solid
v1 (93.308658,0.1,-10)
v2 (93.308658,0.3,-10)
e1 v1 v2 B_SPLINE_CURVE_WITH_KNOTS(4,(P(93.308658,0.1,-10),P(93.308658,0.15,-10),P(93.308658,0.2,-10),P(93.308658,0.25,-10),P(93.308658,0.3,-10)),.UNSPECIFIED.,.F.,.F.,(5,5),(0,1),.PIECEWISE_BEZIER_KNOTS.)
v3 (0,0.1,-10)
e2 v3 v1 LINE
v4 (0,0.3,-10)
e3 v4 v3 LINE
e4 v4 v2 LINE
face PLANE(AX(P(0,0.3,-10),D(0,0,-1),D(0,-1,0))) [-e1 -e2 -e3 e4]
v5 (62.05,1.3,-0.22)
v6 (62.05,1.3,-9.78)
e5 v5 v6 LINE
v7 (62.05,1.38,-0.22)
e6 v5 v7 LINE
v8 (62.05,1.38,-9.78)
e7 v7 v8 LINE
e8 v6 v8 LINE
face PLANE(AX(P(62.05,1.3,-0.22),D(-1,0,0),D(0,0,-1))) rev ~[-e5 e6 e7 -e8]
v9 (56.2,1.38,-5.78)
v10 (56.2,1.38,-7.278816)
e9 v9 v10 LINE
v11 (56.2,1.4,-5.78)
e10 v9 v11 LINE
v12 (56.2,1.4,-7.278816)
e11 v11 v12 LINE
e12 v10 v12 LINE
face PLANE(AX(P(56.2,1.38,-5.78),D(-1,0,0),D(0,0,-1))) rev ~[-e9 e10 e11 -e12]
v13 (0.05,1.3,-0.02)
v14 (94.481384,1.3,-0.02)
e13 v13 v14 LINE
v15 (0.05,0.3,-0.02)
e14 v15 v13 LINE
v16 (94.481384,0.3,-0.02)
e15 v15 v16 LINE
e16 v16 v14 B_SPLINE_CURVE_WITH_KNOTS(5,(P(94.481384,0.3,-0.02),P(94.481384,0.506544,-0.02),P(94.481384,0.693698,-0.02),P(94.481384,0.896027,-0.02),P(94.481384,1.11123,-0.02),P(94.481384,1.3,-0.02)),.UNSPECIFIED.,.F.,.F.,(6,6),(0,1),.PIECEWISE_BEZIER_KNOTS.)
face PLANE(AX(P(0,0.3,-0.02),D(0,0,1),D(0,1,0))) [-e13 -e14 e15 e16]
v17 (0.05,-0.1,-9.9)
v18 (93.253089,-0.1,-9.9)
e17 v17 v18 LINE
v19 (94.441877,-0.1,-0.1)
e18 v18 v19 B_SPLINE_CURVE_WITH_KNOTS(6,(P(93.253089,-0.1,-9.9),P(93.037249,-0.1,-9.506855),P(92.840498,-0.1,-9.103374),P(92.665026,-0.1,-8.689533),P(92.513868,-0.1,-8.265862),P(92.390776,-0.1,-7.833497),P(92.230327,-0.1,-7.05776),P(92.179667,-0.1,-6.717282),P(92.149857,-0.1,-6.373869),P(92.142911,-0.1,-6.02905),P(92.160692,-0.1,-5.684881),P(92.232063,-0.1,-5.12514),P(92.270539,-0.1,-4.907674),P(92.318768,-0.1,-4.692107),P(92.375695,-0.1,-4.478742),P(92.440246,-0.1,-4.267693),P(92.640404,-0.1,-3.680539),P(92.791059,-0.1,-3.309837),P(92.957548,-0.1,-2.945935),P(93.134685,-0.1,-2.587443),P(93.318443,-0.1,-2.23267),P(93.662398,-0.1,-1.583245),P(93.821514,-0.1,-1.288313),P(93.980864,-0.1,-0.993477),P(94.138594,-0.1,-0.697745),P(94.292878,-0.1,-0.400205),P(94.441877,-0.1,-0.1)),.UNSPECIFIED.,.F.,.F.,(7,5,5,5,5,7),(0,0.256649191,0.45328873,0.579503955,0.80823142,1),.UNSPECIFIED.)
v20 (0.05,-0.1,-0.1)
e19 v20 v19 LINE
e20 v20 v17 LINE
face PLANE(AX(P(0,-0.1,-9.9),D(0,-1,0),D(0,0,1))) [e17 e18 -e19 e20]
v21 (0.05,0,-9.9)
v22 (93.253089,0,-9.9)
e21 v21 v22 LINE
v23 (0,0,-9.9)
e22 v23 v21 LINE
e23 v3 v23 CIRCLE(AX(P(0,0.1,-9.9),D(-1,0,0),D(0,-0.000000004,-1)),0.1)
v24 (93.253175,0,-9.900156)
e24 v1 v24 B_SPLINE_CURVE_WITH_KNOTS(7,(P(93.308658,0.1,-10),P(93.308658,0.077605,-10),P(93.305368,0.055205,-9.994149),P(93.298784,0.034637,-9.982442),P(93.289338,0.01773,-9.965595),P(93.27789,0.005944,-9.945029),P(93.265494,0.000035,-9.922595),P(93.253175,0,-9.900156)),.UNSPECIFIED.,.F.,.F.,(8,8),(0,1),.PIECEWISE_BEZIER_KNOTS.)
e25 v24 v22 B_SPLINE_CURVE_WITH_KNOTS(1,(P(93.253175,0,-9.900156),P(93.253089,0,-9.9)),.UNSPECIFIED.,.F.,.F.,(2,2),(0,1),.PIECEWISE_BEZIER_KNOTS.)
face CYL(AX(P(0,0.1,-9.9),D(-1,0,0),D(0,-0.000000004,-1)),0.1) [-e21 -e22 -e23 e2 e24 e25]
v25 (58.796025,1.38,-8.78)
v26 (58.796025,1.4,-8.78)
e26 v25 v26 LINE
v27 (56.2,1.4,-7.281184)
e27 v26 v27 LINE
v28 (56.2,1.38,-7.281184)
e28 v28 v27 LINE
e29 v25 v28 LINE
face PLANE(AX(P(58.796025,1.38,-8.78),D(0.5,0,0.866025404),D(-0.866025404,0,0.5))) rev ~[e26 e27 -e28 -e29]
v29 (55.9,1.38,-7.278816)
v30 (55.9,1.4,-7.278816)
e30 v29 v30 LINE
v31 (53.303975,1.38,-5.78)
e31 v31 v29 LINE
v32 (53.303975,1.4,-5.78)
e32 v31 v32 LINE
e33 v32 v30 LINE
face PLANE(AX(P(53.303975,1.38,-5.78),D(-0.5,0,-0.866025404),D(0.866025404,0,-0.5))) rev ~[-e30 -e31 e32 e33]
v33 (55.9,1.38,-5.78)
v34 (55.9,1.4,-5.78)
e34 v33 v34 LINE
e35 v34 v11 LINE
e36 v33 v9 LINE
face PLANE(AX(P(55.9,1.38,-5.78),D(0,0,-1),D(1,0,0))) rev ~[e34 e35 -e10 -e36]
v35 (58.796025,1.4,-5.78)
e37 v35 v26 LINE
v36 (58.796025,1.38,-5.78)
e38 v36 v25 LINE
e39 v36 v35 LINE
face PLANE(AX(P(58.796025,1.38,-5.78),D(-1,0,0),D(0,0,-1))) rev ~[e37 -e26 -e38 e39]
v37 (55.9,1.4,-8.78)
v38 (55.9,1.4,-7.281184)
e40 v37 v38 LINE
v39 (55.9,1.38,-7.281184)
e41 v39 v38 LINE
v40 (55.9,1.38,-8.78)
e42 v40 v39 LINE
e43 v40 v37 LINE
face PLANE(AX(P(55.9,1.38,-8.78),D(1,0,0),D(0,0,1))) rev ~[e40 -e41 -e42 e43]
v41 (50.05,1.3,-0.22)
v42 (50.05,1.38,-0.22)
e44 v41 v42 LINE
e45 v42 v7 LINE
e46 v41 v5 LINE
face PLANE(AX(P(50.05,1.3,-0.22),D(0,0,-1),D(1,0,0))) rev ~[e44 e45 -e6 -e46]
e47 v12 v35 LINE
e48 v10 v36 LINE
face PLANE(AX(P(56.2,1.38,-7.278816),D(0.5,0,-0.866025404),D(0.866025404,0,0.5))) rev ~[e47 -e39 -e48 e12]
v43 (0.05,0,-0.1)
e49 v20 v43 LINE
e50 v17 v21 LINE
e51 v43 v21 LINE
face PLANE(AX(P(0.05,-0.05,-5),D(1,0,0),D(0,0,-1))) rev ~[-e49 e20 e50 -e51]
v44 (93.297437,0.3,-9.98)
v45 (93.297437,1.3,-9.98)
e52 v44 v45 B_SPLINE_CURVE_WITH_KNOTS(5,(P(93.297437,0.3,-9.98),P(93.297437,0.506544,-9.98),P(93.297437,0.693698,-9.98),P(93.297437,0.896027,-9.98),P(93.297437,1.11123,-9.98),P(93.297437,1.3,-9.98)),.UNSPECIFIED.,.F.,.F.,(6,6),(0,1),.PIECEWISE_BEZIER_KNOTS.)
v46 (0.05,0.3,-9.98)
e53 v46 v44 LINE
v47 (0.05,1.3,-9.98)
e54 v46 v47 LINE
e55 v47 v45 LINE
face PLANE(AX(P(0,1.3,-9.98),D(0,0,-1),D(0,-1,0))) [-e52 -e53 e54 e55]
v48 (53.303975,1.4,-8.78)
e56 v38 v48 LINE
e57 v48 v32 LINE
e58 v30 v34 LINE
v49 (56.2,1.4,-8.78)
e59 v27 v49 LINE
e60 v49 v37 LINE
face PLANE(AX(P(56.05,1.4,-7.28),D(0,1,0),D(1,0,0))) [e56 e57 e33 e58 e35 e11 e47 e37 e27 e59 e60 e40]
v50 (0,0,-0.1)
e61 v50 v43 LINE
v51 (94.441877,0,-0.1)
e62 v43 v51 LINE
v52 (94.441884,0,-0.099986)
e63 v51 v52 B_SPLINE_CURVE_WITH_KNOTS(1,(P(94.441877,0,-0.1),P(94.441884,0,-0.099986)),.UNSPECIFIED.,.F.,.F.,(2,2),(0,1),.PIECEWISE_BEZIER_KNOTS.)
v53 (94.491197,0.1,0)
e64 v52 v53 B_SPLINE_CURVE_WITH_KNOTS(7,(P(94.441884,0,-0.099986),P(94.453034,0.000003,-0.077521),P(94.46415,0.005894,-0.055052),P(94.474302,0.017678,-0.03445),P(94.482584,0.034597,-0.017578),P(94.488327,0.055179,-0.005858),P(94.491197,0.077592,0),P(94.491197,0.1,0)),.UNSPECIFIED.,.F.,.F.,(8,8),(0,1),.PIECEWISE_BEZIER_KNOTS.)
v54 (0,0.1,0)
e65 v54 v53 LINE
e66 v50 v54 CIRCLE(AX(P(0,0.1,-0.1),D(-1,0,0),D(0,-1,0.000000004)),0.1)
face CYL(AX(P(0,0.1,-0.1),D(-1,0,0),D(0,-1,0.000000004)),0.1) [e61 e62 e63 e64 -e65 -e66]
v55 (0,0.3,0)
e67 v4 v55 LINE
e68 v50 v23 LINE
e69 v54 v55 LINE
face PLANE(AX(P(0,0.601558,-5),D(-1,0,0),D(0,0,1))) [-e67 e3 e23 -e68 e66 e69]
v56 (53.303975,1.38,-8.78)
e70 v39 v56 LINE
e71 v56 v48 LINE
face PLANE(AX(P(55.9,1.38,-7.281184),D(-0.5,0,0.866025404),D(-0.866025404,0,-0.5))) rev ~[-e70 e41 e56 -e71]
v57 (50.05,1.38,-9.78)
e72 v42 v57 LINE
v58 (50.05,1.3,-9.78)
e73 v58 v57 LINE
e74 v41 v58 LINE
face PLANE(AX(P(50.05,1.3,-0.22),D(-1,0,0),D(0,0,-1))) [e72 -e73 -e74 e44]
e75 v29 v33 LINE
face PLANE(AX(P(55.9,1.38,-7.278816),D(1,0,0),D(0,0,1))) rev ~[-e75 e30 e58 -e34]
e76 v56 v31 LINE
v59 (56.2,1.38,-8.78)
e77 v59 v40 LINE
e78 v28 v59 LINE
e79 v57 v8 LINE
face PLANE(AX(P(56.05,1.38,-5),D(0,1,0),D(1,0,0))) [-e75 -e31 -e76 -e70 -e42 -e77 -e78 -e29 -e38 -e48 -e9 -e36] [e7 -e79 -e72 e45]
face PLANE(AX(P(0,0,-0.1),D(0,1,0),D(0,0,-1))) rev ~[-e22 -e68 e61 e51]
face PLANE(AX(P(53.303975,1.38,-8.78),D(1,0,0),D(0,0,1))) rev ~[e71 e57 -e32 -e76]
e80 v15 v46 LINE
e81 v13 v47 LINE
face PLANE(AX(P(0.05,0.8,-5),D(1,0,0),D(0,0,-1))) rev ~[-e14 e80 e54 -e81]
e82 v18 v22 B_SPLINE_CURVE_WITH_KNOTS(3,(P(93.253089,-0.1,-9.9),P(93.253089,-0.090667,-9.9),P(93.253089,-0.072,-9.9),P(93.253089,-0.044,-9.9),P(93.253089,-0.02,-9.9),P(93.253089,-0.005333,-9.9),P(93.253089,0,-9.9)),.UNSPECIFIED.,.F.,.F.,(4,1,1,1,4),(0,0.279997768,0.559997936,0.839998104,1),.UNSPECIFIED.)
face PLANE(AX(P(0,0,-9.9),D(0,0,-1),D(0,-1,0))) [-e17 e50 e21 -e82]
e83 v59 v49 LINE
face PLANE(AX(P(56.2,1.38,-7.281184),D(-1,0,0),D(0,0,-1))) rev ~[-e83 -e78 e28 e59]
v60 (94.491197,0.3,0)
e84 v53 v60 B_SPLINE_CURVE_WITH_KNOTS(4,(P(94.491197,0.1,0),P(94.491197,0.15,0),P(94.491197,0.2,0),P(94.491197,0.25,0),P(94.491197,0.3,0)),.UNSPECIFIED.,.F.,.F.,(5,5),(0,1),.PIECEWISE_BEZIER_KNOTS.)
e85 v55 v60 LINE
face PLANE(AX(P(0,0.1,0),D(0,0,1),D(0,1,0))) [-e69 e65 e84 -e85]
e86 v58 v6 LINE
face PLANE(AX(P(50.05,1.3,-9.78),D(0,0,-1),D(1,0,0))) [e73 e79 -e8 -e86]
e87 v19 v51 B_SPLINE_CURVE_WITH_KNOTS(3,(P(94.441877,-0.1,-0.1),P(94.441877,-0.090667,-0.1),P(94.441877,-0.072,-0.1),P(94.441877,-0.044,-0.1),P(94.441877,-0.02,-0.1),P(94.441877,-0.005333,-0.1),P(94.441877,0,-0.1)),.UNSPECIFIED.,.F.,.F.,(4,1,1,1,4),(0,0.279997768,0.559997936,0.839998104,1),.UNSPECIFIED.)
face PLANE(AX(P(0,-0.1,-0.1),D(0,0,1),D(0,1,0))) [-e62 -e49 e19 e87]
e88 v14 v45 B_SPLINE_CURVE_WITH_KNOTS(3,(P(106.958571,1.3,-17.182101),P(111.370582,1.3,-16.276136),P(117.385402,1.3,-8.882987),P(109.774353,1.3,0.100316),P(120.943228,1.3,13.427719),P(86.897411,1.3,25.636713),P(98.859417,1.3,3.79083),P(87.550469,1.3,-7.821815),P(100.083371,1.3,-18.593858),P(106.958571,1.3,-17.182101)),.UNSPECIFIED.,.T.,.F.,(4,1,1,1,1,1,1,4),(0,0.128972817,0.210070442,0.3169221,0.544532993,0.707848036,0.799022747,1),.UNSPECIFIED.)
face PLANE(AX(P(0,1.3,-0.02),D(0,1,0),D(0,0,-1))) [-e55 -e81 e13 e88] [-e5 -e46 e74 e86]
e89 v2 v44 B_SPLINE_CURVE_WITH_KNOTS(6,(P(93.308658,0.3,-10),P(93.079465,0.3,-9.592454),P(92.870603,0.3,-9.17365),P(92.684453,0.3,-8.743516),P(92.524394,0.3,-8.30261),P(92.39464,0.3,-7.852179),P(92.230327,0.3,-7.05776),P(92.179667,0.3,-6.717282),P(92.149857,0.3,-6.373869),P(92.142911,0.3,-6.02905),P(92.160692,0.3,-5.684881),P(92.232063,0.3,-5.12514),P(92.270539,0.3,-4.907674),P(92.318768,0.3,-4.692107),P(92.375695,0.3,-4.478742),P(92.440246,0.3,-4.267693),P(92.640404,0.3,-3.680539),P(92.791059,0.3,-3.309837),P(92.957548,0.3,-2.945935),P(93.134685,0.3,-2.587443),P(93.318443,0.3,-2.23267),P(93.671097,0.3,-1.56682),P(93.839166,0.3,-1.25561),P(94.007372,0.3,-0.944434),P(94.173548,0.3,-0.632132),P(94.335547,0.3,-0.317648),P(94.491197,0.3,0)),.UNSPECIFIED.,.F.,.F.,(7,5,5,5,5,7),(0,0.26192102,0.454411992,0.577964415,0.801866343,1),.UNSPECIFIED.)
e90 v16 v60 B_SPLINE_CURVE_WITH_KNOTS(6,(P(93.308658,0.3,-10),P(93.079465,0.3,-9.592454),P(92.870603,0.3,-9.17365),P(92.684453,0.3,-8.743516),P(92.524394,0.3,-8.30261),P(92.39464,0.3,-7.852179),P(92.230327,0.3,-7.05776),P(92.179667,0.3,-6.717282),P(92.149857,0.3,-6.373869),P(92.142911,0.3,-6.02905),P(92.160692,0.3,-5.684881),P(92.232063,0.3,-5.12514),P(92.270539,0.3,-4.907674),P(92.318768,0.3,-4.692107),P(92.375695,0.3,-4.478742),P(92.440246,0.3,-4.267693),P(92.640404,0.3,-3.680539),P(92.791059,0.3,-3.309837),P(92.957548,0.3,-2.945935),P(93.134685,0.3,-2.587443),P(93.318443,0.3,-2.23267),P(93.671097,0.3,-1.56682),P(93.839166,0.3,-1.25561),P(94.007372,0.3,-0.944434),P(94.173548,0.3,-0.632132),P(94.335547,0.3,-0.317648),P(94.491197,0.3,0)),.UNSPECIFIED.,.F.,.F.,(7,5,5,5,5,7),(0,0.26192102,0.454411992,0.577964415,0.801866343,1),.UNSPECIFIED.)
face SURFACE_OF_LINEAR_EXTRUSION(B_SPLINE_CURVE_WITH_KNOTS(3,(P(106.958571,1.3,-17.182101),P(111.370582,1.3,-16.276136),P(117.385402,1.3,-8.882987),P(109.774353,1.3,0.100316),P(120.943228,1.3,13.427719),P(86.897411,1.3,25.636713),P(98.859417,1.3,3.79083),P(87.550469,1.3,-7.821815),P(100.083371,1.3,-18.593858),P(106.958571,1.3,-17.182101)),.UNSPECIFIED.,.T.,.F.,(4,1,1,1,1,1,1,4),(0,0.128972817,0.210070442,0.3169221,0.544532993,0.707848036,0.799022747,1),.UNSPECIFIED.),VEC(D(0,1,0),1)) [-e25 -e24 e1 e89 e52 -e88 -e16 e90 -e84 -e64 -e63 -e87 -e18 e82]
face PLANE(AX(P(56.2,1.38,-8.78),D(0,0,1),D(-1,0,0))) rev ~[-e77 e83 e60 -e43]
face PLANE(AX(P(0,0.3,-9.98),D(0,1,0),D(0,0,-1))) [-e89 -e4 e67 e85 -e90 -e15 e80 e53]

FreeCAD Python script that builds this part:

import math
import FreeCAD as App
import Part
import Sketcher
Q = App.Units.Quantity


def add_polygon(sketch, points):
    """Adds a closed chain of lines whose ends are joined by coincident constraints."""
    first, n = sketch.GeometryCount, len(points)
    for a, b in zip(points, points[1:] + points[:1]):
        sketch.addGeometry(Part.LineSegment(App.Vector(*a, 0), App.Vector(*b, 0)), False)
    for i in range(n):
        sketch.addConstraint(Sketcher.Constraint("Coincident", first + i, 2, first + (i + 1) % n, 1))

doc = App.newDocument("Part")
body = doc.addObject("PartDesign::Body", "Body")

# Sketch on YZ plane
sketch1 = body.newObject("Sketcher::SketchObject", "Sketch")
sketch1.AttachmentSupport = (doc.getObject("YZ_Plane"), [""])
sketch1.MapMode = "FlatFace"
sketch1.addGeometry([
    Part.LineSegment(App.Vector(0.3, -10, 0), App.Vector(0.3, -9.98, 0)),  # 0
    Part.LineSegment(App.Vector(0.3, -9.98, 0), App.Vector(1.3, -9.98, 0)),  # 1
    Part.LineSegment(App.Vector(1.3, -9.98, 0), App.Vector(1.3, -0.02, 0)),  # 2
    Part.LineSegment(App.Vector(1.3, -0.02, 0), App.Vector(0.3, -0.02, 0)),  # 3
    Part.LineSegment(App.Vector(0.3, -0.02, 0), App.Vector(0.3, 0, 0)),  # 4
    Part.LineSegment(App.Vector(0.3, 0, 0), App.Vector(0.1, 0, 0)),  # 5
    Part.ArcOfCircle(Part.Circle(App.Vector(0.1, -0.1, 0), App.Vector(0, 0, 1), 0.1), math.radians(90), math.radians(180)),  # 6
    Part.LineSegment(App.Vector(0, -0.1, 0), App.Vector(-0.1, -0.1, 0)),  # 7
    Part.LineSegment(App.Vector(-0.1, -0.1, 0), App.Vector(-0.1, -9.9, 0)),  # 8
    Part.LineSegment(App.Vector(-0.1, -9.9, 0), App.Vector(0, -9.9, 0)),  # 9
    Part.ArcOfCircle(Part.Circle(App.Vector(0.1, -9.9, 0), App.Vector(0, 0, 1), 0.1), math.radians(180), math.radians(270)),  # 10
    Part.LineSegment(App.Vector(0.1, -10, 0), App.Vector(0.3, -10, 0)),  # 11
], False)
sketch1.addConstraint([
    Sketcher.Constraint("Coincident", 0, 2, 1, 1),
    Sketcher.Constraint("Coincident", 1, 2, 2, 1),
    Sketcher.Constraint("Coincident", 2, 2, 3, 1),
    Sketcher.Constraint("Coincident", 3, 2, 4, 1),
    Sketcher.Constraint("Coincident", 4, 2, 5, 1),
    Sketcher.Constraint("Tangent", 5, 2, 6, 1),
    Sketcher.Constraint("Coincident", 6, 2, 7, 1),
    Sketcher.Constraint("Coincident", 7, 2, 8, 1),
    Sketcher.Constraint("Coincident", 8, 2, 9, 1),
    Sketcher.Constraint("Coincident", 9, 2, 10, 1),
    Sketcher.Constraint("Tangent", 10, 2, 11, 1),
    Sketcher.Constraint("Coincident", 11, 2, 0, 1),
    Sketcher.Constraint("Vertical", 0),
    Sketcher.Constraint("Horizontal", 1),
    Sketcher.Constraint("Vertical", 2),
    Sketcher.Constraint("Horizontal", 3),
    Sketcher.Constraint("Vertical", 4),
    Sketcher.Constraint("Horizontal", 5),
    Sketcher.Constraint("Horizontal", 7),
    Sketcher.Constraint("Vertical", 8),
    Sketcher.Constraint("Horizontal", 9),
    Sketcher.Constraint("Horizontal", 11),
    Sketcher.Constraint("Equal", 6, 10),
    Sketcher.Constraint("PointOnObject", 4, 2, -1),
    Sketcher.Constraint("PointOnObject", 6, 2, -2),
    Sketcher.Constraint("PointOnObject", 9, 2, -2),
    Sketcher.Constraint("Horizontal", 10, 3, 8, 2),
    Sketcher.Constraint("Vertical", 0, 2, 3, 2),
    Sketcher.Constraint("Equal", 0, 4),
    Sketcher.Constraint("Radius", 6, 0.1),
    Sketcher.Constraint("DistanceX", 1, 1, 1, 2, 1.0),
    Sketcher.Constraint("DistanceX", 5, 2, 5, 1, 0.2),
    Sketcher.Constraint("DistanceX", 7, 2, 7, 1, 0.1),
    Sketcher.Constraint("DistanceY", 8, 2, 8, 1, 9.8),
    Sketcher.Constraint("DistanceY", 10, 2, -1, 1, 10.0),
    Sketcher.Constraint("DistanceY", 0, 1, 0, 2, 0.02),
])
pad1 = body.newObject("PartDesign::Pad", "Pad")
pad1.Profile = sketch1
pad1.Length = 100

# Sketch on YZ plane
sketch2 = body.newObject("Sketcher::SketchObject", "Sketch001")
sketch2.AttachmentSupport = (doc.getObject("YZ_Plane"), [""])
sketch2.MapMode = "FlatFace"
add_polygon(sketch2, [(1.3, -0.02), (0.3, -0.02), (0.3, -9.98), (1.3, -9.98)])  # lines 0-3
add_polygon(sketch2, [(0, -0.1), (-0.1, -0.1), (-0.1, -9.9), (0, -9.9)])  # lines 4-7
sketch2.addConstraint([
    Sketcher.Constraint("Horizontal", 0),
    Sketcher.Constraint("Vertical", 1),
    Sketcher.Constraint("Horizontal", 2),
    Sketcher.Constraint("Vertical", 3),
    Sketcher.Constraint("Horizontal", 4),
    Sketcher.Constraint("Vertical", 5),
    Sketcher.Constraint("Horizontal", 6),
    Sketcher.Constraint("Vertical", 7),
    Sketcher.Constraint("PointOnObject", 6, 2, -2),
    Sketcher.Constraint("DistanceX", 0, 2, 0, 1, 1.0),
    Sketcher.Constraint("DistanceX", 4, 2, 4, 1, 0.1),
    Sketcher.Constraint("DistanceY", 5, 2, 5, 1, 9.8),
    Sketcher.Constraint("DistanceY", 1, 2, 1, 1, 9.96),
    Sketcher.Constraint("DistanceX", -1, 1, 0, 2, 0.3),
    Sketcher.Constraint("DistanceY", 4, 2, -1, 1, 0.1),
    Sketcher.Constraint("DistanceY", 0, 2, -1, 1, 0.02),
])
pocket1 = body.newObject("PartDesign::Pocket", "Pocket")
pocket1.Profile = sketch2
pocket1.Length = 0.05
pocket1.Reversed = True

# Sketch on XZ plane
sketch3 = body.newObject("Sketcher::SketchObject", "Sketch002")
sketch3.AttachmentSupport = (doc.getObject("XZ_Plane"), [""])
sketch3.MapMode = "FlatFace"
sketch3.AttachmentOffset = App.Placement(App.Vector(0, 0, -1.3), App.Rotation())
sketch3.addGeometry(Part.BSplineCurve([App.Vector(106.958571, -17.182101, 0), App.Vector(111.370582, -16.276136, 0), App.Vector(117.385402, -8.882987, 0), App.Vector(109.774353, 0.100316, 0), App.Vector(120.943228, 13.427719, 0), App.Vector(86.897411, 25.636713, 0), App.Vector(98.859417, 3.79083, 0), App.Vector(87.550469, -7.821815, 0), App.Vector(100.083371, -18.593858, 0), App.Vector(106.958571, -17.182101, 0)], [4, 1, 1, 1, 1, 1, 1, 4], [0, 0.128972817, 0.210070442, 0.3169221, 0.544532993, 0.707848036, 0.799022747, 1], False, 3, [1, 1, 1, 1, 1, 1, 1, 1, 1, 1], False), False)
sketch3.addConstraint(Sketcher.Constraint("Block", 0))
pocket2 = body.newObject("PartDesign::Pocket", "Pocket001")
pocket2.Profile = sketch3
pocket2.Length = 2
pocket2.Reversed = True

# Sketch on XZ plane
sketch4 = body.newObject("Sketcher::SketchObject", "Sketch003")
sketch4.AttachmentSupport = (doc.getObject("XZ_Plane"), [""])
sketch4.MapMode = "FlatFace"
sketch4.AttachmentOffset = App.Placement(App.Vector(0, 0, -1.3), App.Rotation())
add_polygon(sketch4, [(50, -10), (50, 0), (62, 0), (62, -10)])  # lines 0-3
sketch4.addConstraint([
    Sketcher.Constraint("Vertical", 0),
    Sketcher.Constraint("Horizontal", 1),
    Sketcher.Constraint("Vertical", 2),
    Sketcher.Constraint("Horizontal", 3),
    Sketcher.Constraint("DistanceX", 1, 1, 1, 2, 12.0),
    Sketcher.Constraint("DistanceY", 0, 1, 0, 2, 9.56),
    Sketcher.Constraint("DistanceX", -1, 1, 0, 2, 50.05),
    Sketcher.Constraint("DistanceY", 0, 2, -1, 1, 0.22),
])
pad2 = body.newObject("PartDesign::Pad", "Pad001")
pad2.Profile = sketch4
pad2.Length = 0.08
pad2.Reversed = True

# Sketch on XZ plane
sketch5 = body.newObject("Sketcher::SketchObject", "Sketch004")
sketch5.AttachmentSupport = (doc.getObject("XZ_Plane"), [""])
sketch5.MapMode = "FlatFace"
sketch5.AttachmentOffset = App.Placement(App.Vector(0, 0, -1.38), App.Rotation())
add_polygon(sketch5, [(55.9, -7.28), (53.3, -8.78), (53.3, -5.78), (55.9, -7.28), (55.9, -5.78), (56.2, -5.78), (56.2, -7.28), (58.8, -5.78), (58.8, -8.78), (56.2, -7.28), (56.2, -8.78), (55.9, -8.78)])  # lines 0-11
sketch5.addConstraint([
    Sketcher.Constraint("Vertical", 1),
    Sketcher.Constraint("Vertical", 3),
    Sketcher.Constraint("Horizontal", 4),
    Sketcher.Constraint("Vertical", 5),
    Sketcher.Constraint("Vertical", 7),
    Sketcher.Constraint("Vertical", 9),
    Sketcher.Constraint("Horizontal", 10),
    Sketcher.Constraint("Vertical", 11),
    Sketcher.Constraint("Parallel", 0, 6),
    Sketcher.Constraint("Parallel", 2, 8),
    Sketcher.Constraint("Horizontal", 1, 2, 3, 2),
    Sketcher.Constraint("Horizontal", 2, 2, 5, 2),
    Sketcher.Constraint("Horizontal", 4, 2, 6, 2),
    Sketcher.Constraint("Horizontal", 0, 2, 7, 2),
    Sketcher.Constraint("Horizontal", 7, 2, 9, 2),
    Sketcher.Constraint("Horizontal", 8, 2, 11, 2),
    Sketcher.Constraint("Vertical", 5, 2, 8, 2),
    Sketcher.Constraint("Vertical", 3, 2, 10, 2),
    Sketcher.Constraint("DistanceY", 1, 1, 1, 2, 3.0),
    Sketcher.Constraint("Angle", 0, Q("-150 deg")),
    Sketcher.Constraint("DistanceX", 4, 1, 4, 2, 0.3),
    Sketcher.Constraint("DistanceX", -1, 1, 2, 2, 55.9),
    Sketcher.Constraint("DistanceY", 0, 2, -1, 1, 8.78),
    Sketcher.Constraint("Distance", 0, 2.997632),
])
pad3 = body.newObject("PartDesign::Pad", "Pad002")
pad3.Profile = sketch5
pad3.Length = 0.02
pad3.Reversed = True

doc.recompute()
